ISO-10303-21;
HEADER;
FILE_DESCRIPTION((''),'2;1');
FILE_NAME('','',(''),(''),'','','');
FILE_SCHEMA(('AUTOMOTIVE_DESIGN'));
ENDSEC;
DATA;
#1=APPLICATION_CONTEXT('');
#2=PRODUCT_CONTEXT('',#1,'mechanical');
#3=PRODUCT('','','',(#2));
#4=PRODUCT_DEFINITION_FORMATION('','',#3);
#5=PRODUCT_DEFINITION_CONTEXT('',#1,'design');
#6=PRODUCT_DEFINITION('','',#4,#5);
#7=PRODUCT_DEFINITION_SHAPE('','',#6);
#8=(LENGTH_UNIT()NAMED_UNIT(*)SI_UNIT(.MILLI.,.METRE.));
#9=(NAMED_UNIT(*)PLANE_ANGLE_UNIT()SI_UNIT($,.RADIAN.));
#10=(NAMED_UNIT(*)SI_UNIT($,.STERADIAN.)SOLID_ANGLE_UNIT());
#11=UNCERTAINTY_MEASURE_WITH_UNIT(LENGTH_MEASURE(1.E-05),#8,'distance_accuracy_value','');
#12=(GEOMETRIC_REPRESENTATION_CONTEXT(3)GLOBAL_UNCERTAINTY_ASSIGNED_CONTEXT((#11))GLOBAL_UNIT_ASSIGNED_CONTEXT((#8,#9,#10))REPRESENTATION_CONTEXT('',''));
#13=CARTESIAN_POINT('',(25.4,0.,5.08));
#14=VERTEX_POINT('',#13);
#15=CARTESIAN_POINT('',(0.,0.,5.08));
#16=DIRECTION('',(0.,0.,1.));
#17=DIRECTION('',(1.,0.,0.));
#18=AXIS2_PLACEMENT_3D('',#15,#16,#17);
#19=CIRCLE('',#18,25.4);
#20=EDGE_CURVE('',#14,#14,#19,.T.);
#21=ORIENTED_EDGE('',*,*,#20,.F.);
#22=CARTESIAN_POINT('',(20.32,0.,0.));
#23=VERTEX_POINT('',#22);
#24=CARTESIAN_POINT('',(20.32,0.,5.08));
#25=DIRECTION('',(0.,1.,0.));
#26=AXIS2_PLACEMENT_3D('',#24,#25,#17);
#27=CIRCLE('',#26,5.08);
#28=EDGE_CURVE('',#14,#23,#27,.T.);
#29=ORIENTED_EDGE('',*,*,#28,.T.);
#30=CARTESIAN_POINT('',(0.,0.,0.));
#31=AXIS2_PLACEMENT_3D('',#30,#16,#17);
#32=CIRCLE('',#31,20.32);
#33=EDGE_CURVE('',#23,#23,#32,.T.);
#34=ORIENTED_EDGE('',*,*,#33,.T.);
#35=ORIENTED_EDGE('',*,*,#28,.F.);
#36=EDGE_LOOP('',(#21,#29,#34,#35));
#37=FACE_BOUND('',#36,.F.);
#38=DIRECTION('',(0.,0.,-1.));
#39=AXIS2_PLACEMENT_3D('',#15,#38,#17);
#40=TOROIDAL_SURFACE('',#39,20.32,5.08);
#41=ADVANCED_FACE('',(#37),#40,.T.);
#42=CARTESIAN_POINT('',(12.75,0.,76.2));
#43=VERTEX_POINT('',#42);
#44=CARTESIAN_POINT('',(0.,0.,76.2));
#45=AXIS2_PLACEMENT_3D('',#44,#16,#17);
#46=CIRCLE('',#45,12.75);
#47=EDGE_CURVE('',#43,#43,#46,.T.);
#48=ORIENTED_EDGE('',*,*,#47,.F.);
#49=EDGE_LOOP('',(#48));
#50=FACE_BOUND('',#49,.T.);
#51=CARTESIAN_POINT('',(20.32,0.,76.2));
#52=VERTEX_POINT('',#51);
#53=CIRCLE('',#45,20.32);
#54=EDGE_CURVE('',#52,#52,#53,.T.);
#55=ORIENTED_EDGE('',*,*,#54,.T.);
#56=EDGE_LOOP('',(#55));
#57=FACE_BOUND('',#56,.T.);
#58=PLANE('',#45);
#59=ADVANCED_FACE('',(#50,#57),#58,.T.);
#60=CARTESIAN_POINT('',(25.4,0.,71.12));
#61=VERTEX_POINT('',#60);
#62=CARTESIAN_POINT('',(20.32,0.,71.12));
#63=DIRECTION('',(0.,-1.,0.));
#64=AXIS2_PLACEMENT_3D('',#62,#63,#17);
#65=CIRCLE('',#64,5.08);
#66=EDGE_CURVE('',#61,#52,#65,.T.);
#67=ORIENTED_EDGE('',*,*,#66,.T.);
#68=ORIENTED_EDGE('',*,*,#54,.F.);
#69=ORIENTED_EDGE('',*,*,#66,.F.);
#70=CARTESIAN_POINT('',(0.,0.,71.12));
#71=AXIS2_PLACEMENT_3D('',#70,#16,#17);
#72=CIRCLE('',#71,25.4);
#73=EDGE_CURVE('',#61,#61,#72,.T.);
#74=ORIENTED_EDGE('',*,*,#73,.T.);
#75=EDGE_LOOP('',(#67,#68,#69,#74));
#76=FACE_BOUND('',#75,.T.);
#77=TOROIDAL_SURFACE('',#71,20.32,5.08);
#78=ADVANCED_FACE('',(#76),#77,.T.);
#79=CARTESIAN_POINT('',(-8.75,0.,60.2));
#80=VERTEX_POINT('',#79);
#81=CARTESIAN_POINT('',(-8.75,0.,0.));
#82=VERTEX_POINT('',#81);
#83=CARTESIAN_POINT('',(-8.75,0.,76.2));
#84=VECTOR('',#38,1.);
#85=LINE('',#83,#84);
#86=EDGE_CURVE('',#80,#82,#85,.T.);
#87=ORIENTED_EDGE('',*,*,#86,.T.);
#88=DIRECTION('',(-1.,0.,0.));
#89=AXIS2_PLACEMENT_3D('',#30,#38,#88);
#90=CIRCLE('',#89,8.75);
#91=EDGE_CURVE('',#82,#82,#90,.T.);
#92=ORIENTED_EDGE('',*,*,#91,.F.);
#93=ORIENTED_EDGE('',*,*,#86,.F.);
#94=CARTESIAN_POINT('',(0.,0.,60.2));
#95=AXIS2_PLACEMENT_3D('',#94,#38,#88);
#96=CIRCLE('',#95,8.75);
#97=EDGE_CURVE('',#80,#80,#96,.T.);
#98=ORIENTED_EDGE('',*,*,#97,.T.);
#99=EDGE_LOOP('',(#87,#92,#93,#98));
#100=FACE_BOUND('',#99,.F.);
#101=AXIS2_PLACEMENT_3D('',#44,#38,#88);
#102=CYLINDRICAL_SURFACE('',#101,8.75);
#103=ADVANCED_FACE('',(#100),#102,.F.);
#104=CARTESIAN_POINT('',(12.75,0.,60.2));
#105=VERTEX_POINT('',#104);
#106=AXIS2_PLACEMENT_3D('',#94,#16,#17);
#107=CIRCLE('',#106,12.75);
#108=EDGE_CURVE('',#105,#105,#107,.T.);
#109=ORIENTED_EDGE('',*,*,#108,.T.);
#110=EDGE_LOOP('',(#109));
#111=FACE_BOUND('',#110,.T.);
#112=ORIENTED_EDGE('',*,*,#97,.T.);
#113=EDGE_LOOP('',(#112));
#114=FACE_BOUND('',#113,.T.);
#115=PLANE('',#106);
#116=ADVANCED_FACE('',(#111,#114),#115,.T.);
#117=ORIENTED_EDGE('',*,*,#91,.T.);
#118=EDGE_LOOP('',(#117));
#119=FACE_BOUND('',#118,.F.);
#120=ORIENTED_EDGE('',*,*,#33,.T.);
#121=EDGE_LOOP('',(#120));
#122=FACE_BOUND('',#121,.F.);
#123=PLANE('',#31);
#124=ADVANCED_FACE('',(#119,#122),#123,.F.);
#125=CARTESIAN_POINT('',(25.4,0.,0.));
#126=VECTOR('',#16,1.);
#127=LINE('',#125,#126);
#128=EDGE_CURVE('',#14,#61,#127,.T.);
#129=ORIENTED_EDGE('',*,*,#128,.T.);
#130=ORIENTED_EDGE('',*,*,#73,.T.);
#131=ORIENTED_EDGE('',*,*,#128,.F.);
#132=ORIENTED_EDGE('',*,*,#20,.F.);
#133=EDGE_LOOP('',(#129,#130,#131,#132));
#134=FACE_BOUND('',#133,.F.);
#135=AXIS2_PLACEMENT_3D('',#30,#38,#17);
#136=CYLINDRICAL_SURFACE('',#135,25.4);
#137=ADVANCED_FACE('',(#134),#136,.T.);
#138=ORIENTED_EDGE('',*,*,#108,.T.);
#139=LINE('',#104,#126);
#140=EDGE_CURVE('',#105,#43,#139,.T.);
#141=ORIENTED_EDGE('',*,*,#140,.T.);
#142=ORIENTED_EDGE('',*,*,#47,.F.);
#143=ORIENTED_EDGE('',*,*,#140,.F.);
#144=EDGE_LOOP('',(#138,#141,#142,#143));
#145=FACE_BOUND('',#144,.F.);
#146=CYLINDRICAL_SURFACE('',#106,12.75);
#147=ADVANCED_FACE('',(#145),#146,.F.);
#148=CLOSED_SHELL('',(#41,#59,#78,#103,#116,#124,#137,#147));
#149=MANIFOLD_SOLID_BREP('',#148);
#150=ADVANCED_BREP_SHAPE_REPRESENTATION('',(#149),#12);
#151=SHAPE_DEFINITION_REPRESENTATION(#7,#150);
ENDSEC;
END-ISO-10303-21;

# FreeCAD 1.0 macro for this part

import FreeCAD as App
import Part
import Sketcher
Q = App.Units.Quantity


def edges_at(feature, points):
    """Names of the edges that pass closest to the given points."""
    edges = feature.Shape.Edges
    near = lambda p: min(range(len(edges)), key=lambda i: edges[i].distToShape(Part.Vertex(*p))[0])
    return sorted({f"Edge{near(p) + 1}" for p in points})

doc = App.newDocument("Part")
body = doc.addObject("PartDesign::Body", "Body")

# Sketch on XY plane
sketch1 = doc.addObject("Sketcher::SketchObject", "Sketch")
body.addObject(sketch1)
sketch1.AttachmentSupport = (doc.XY_Plane, [""])
sketch1.MapMode = "FlatFace"
sketch1.addGeometry(Part.Circle(App.Vector(0, 0, 0), App.Vector(0, 0, 1), 25.4), False)
sketch1.addConstraint([
    Sketcher.Constraint("Coincident", 0, 3, -1, 1),
    Sketcher.Constraint("Diameter", 0, Q("2 in")),
])
pad1 = doc.addObject("PartDesign::Pad", "Pad")
body.addObject(pad1)
pad1.Profile = sketch1
pad1.Length = Q("3 in")

# Sketch on XY plane
sketch2 = doc.addObject("Sketcher::SketchObject", "Sketch001")
body.addObject(sketch2)
sketch2.AttachmentSupport = (doc.XY_Plane, [""])
sketch2.MapMode = "FlatFace"
sketch2.AttachmentOffset = App.Placement(App.Vector(0, 0, 3 * 25.4), App.Rotation())
sketch2.addGeometry(Part.Circle(App.Vector(0, 0, 0), App.Vector(0, 0, 1), 8.75), False)
sketch2.addConstraint([
    Sketcher.Constraint("Coincident", 0, 3, -1, 1),
    Sketcher.Constraint("Diameter", 0, 17.5),
])
doc.recompute()
hole = doc.addObject("PartDesign::Hole", "Hole")
body.addObject(hole)
hole.Profile = sketch2
hole.ThreadType = "None"
hole.Diameter = 17.5
hole.DepthType = "ThroughAll"
hole.HoleCutType = "Counterbore"
hole.HoleCutDiameter = 25.5
hole.HoleCutDepth = 16
doc.recompute()

fillet = doc.addObject("PartDesign::Fillet", "Fillet")
body.addObject(fillet)
fillet.Base = (hole, edges_at(hole, [(-25.4, 0, 76.2), (-25.4, 0, 0)]))
fillet.Radius = Q("0.2 in")

doc.recompute()
